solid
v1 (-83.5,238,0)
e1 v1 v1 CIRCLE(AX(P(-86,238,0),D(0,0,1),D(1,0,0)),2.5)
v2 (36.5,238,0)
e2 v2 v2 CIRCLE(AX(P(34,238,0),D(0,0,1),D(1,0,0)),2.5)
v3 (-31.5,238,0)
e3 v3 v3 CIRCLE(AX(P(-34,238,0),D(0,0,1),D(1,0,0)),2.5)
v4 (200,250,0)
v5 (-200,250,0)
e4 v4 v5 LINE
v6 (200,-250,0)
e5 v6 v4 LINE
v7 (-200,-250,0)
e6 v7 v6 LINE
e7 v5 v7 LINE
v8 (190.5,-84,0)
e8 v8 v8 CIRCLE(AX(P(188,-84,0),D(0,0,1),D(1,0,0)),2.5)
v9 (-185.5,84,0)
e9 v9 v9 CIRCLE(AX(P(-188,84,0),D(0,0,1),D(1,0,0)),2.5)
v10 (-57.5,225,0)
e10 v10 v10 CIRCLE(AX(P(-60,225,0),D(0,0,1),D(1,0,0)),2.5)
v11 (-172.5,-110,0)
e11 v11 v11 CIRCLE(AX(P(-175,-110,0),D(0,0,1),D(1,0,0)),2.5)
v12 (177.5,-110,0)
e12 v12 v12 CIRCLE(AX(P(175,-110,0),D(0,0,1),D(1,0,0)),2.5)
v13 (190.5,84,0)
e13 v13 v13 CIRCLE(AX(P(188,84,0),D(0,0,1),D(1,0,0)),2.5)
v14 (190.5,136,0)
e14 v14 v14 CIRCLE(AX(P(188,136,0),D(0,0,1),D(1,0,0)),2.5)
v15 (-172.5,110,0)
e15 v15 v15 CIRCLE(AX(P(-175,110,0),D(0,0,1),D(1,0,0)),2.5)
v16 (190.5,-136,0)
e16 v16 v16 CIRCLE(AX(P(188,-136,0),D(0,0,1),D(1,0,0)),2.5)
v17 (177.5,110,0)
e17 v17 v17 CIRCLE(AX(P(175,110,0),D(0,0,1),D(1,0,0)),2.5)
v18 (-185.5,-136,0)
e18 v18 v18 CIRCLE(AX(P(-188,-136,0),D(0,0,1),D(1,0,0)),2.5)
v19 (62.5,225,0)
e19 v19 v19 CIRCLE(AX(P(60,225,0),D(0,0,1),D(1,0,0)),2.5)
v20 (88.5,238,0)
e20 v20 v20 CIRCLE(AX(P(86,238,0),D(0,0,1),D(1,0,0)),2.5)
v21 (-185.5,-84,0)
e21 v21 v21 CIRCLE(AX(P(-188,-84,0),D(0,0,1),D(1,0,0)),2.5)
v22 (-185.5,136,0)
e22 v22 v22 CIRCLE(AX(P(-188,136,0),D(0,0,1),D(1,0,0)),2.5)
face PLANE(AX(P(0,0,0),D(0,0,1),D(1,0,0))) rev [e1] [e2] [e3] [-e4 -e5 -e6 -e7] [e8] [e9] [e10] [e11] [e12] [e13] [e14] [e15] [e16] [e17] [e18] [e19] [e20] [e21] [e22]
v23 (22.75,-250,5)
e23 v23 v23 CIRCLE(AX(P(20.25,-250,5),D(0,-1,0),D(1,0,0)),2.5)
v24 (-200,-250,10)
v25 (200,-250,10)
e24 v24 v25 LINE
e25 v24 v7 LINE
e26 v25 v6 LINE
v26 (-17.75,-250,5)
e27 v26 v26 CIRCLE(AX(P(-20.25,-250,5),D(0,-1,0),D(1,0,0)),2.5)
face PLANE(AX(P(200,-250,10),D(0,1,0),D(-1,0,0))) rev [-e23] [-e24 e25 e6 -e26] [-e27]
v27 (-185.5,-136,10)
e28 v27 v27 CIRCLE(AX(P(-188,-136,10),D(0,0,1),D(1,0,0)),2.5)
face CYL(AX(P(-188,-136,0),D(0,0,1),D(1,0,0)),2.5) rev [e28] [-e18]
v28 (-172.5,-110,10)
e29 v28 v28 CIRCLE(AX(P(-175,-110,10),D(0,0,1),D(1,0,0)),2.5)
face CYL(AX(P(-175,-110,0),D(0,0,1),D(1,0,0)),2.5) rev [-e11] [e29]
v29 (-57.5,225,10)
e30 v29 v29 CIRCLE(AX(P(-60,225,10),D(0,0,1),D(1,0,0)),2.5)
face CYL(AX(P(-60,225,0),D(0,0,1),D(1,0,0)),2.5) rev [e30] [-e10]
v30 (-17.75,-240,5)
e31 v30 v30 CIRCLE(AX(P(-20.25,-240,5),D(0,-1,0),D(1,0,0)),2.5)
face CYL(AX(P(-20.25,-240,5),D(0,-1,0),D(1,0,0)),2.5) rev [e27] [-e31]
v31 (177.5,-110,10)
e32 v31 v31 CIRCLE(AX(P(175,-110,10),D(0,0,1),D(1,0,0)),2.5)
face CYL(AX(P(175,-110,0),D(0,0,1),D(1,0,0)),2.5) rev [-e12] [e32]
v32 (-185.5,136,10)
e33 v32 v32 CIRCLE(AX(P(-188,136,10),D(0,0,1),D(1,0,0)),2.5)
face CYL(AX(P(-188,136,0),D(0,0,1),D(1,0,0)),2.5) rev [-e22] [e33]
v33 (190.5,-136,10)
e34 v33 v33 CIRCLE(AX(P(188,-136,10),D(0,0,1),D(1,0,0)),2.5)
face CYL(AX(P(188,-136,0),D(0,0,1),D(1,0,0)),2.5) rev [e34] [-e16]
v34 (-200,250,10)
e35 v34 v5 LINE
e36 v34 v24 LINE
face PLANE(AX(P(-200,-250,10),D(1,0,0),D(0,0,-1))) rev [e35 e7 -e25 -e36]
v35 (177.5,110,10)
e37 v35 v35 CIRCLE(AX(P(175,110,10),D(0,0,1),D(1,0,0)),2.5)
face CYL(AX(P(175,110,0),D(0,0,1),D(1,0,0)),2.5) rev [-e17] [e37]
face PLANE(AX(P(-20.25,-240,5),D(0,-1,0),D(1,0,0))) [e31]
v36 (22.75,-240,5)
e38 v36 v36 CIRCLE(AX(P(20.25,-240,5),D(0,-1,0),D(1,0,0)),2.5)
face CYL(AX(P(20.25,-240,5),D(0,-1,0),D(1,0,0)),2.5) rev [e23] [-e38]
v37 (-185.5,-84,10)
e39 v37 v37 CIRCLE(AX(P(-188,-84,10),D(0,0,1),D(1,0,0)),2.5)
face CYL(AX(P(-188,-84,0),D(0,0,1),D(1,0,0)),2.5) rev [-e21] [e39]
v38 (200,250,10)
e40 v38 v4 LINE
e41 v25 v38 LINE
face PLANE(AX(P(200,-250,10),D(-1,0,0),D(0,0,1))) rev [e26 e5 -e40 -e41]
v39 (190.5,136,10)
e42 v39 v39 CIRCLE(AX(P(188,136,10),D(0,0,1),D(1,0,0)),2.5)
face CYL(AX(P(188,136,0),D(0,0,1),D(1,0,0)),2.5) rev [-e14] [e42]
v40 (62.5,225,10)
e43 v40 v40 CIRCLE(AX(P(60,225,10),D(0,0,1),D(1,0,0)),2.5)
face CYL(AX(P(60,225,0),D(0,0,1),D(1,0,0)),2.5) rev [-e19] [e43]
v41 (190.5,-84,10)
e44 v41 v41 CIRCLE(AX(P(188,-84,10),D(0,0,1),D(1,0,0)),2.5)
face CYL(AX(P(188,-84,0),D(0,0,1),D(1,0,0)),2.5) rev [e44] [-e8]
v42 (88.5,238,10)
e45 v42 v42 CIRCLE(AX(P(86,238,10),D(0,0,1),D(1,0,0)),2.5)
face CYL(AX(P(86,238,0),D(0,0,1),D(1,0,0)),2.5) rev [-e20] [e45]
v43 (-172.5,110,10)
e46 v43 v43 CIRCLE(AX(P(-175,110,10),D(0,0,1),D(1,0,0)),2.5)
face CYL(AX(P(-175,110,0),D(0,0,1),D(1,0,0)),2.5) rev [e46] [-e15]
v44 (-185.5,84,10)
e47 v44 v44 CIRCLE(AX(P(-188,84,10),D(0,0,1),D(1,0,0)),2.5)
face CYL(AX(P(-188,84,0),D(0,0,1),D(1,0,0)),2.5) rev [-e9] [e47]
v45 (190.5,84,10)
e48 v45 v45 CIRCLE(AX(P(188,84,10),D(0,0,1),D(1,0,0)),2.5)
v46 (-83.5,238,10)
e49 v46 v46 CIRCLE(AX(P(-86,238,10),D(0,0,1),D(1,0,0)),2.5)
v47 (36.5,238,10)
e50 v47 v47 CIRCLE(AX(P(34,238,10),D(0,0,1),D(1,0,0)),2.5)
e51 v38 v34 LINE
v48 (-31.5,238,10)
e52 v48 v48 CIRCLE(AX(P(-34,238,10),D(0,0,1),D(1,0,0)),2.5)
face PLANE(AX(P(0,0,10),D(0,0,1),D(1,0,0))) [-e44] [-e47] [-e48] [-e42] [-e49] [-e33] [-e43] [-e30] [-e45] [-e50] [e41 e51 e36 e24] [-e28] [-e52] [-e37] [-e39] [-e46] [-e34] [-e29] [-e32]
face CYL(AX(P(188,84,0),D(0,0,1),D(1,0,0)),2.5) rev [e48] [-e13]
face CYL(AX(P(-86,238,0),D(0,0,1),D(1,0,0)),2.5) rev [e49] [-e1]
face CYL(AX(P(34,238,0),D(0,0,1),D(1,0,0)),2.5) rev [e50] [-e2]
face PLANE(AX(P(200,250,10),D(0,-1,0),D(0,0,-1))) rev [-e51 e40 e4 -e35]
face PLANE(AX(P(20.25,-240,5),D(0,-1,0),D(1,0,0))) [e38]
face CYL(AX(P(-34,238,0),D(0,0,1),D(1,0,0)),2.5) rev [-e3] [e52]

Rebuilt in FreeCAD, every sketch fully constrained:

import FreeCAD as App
import Part
import Sketcher
from FreeCAD import Vector
Q = App.Units.Quantity


def add_polygon(sketch, points):
    """Adds a closed chain of lines whose ends are joined by coincident constraints."""
    first, n = sketch.GeometryCount, len(points)
    for a, b in zip(points, points[1:] + points[:1]):
        sketch.addGeometry(Part.LineSegment(App.Vector(*a, 0), App.Vector(*b, 0)), False)
    for i in range(n):
        sketch.addConstraint(Sketcher.Constraint("Coincident", first + i, 2, first + (i + 1) % n, 1))

doc = App.newDocument("Part")
body = doc.addObject("PartDesign::Body", "Body")

# Sketch on XY plane
sketch1 = doc.addObject("Sketcher::SketchObject", "Sketch")
body.addObject(sketch1)
sketch1.AttachmentSupport = (doc.XY_Plane, [""])
sketch1.MapMode = "FlatFace"
add_polygon(sketch1, [(-200, 250), (-200, -250), (200, -250), (200, 250)])  # lines 0-3
sketch1.addConstraint([
    Sketcher.Constraint("Vertical", 0),
    Sketcher.Constraint("Horizontal", 1),
    Sketcher.Constraint("Vertical", 2),
    Sketcher.Constraint("Horizontal", 3),
    Sketcher.Constraint("Symmetric", 0, 2, 2, 2, -1, 1),
    Sketcher.Constraint("DistanceX", 1, 1, 1, 2, Q("400 mm")),
    Sketcher.Constraint("DistanceY", 0, 2, 0, 1, Q("500 mm")),
])
pad1 = doc.addObject("PartDesign::Pad", "Pad")
body.addObject(pad1)
pad1.Profile = sketch1
pad1.Length = 10

# Sketch on XY plane
sketch2 = doc.addObject("Sketcher::SketchObject", "Sketch001")
body.addObject(sketch2)
sketch2.AttachmentSupport = (doc.XY_Plane, [""])
sketch2.MapMode = "FlatFace"
sketch2.AttachmentOffset = App.Placement(Vector(0, 0, 10), App.Rotation())
sketch2.addGeometry([
    Part.Circle(Vector(-188, -136, 0), Vector(0, 0, 1), 2.5),  # 0
    Part.Circle(Vector(-175, -110, 0), Vector(0, 0, 1), 2.5),  # 1
    Part.Circle(Vector(-188, -84, 0), Vector(0, 0, 1), 2.5),  # 2
    Part.Circle(Vector(-188, 136, 0), Vector(0, 0, 1), 2.5),  # 3
    Part.Circle(Vector(-175, 110, 0), Vector(0, 0, 1), 2.5),  # 4
    Part.Circle(Vector(-188, 84, 0), Vector(0, 0, 1), 2.5),  # 5
    Part.Circle(Vector(-86, 238, 0), Vector(0, 0, 1), 2.5),  # 6
    Part.Circle(Vector(-60, 225, 0), Vector(0, 0, 1), 2.5),  # 7
    Part.Circle(Vector(-34, 238, 0), Vector(0, 0, 1), 2.5),  # 8
    Part.Circle(Vector(34, 238, 0), Vector(0, 0, 1), 2.5),  # 9
    Part.Circle(Vector(60, 225, 0), Vector(0, 0, 1), 2.5),  # 10
    Part.Circle(Vector(86, 238, 0), Vector(0, 0, 1), 2.5),  # 11
    Part.Circle(Vector(175, 110, 0), Vector(0, 0, 1), 2.5),  # 12
    Part.Circle(Vector(188, 136, 0), Vector(0, 0, 1), 2.5),  # 13
    Part.Circle(Vector(188, 84, 0), Vector(0, 0, 1), 2.5),  # 14
    Part.Circle(Vector(188, -84, 0), Vector(0, 0, 1), 2.5),  # 15
    Part.Circle(Vector(175, -110, 0), Vector(0, 0, 1), 2.5),  # 16
    Part.Circle(Vector(188, -136, 0), Vector(0, 0, 1), 2.5),  # 17
], False)
sketch2.addConstraint([
    Sketcher.Constraint("Equal", 0, 1),
    Sketcher.Constraint("Equal", 1, 2),
    Sketcher.Constraint("Equal", 2, 3),
    Sketcher.Constraint("Equal", 3, 4),
    Sketcher.Constraint("Equal", 4, 5),
    Sketcher.Constraint("Equal", 5, 6),
    Sketcher.Constraint("Equal", 6, 7),
    Sketcher.Constraint("Equal", 7, 8),
    Sketcher.Constraint("Equal", 8, 9),
    Sketcher.Constraint("Equal", 9, 10),
    Sketcher.Constraint("Equal", 10, 11),
    Sketcher.Constraint("Equal", 11, 12),
    Sketcher.Constraint("Equal", 12, 13),
    Sketcher.Constraint("Equal", 13, 14),
    Sketcher.Constraint("Equal", 14, 15),
    Sketcher.Constraint("Equal", 15, 16),
    Sketcher.Constraint("Equal", 16, 17),
    Sketcher.Constraint("Symmetric", 1, 3, 12, 3, -1, 1),
    Sketcher.Constraint("Symmetric", 0, 3, 13, 3, -1, 1),
    Sketcher.Constraint("Symmetric", 2, 3, 14, 3, -1, 1),
    Sketcher.Constraint("Symmetric", 5, 3, 15, 3, -1, 1),
    Sketcher.Constraint("Symmetric", 4, 3, 16, 3, -1, 1),
    Sketcher.Constraint("Symmetric", 3, 3, 17, 3, -1, 1),
    Sketcher.Constraint("Symmetric", 8, 3, 9, 3, -2),
    Sketcher.Constraint("Symmetric", 7, 3, 10, 3, -2),
    Sketcher.Constraint("Symmetric", 6, 3, 11, 3, -2),
    Sketcher.Constraint("Symmetric", 4, 3, 12, 3, -2),
    Sketcher.Constraint("Symmetric", 3, 3, 13, 3, -2),
    Sketcher.Constraint("Symmetric", 5, 3, 14, 3, -2),
    Sketcher.Constraint("Horizontal", 6, 3, 8, 3),
    Sketcher.Constraint("Vertical", 0, 3, 2, 3),
    Sketcher.Constraint("Diameter", 0, Q("5 mm")),
    Sketcher.Constraint("DistanceX", 0, 3, -1, 1, Q("188 mm")),
    Sketcher.Constraint("DistanceY", 0, 3, -1, 1, Q("136 mm")),
    Sketcher.Constraint("DistanceX", 1, 3, -1, 1, Q("175 mm")),
    Sketcher.Constraint("DistanceY", 1, 3, -1, 1, Q("110 mm")),
    Sketcher.Constraint("DistanceY", 2, 3, -1, 1, Q("84 mm")),
    Sketcher.Constraint("DistanceX", 6, 3, -1, 1, Q("86 mm")),
    Sketcher.Constraint("DistanceY", -1, 1, 6, 3, Q("238 mm")),
    Sketcher.Constraint("DistanceX", 7, 3, -1, 1, Q("60 mm")),
    Sketcher.Constraint("DistanceY", -1, 1, 7, 3, Q("225 mm")),
    Sketcher.Constraint("DistanceX", 8, 3, -1, 1, Q("34 mm")),
])
pocket1 = doc.addObject("PartDesign::Pocket", "Pocket")
body.addObject(pocket1)
pocket1.Profile = sketch2
pocket1.Type = "ThroughAll"

# Sketch on XZ plane
sketch3 = doc.addObject("Sketcher::SketchObject", "Sketch002")
body.addObject(sketch3)
sketch3.AttachmentSupport = (doc.XZ_Plane, [""])
sketch3.MapMode = "FlatFace"
sketch3.AttachmentOffset = App.Placement(Vector(0, 0, 250), App.Rotation())
sketch3.addGeometry([
    Part.Circle(Vector(-20.2, 5, 0), Vector(0, 0, 1), 2.5),
    Part.Circle(Vector(20.2, 5, 0), Vector(0, 0, 1), 2.5),
], False)
sketch3.addConstraint([
    Sketcher.Constraint("Equal", 0, 1),
    Sketcher.Constraint("Symmetric", 0, 3, 1, 3, -2),
    Sketcher.Constraint("Diameter", 0, Q("5 mm")),
    Sketcher.Constraint("DistanceY", -1, 1, 0, 3, Q("5 mm")),
    Sketcher.Constraint("DistanceX", 0, 3, 1, 3, Q("40.5 mm")),
])
pocket2 = doc.addObject("PartDesign::Pocket", "Pocket001")
body.addObject(pocket2)
pocket2.Profile = sketch3
pocket2.Length = 10

doc.recompute()
